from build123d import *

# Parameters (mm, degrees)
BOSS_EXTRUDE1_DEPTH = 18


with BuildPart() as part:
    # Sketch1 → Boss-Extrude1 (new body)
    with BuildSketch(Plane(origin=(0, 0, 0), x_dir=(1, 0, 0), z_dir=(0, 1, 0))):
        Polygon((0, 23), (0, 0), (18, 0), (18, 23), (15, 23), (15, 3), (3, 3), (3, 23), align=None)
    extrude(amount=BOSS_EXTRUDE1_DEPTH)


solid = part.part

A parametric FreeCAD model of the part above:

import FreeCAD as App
import Part
import Sketcher

V = App.Vector
Q = App.Units.Quantity


def add_polygon(sketch, points):
    """Adds a closed chain of lines whose ends are joined by coincident constraints."""
    first, n = sketch.GeometryCount, len(points)
    for a, b in zip(points, points[1:] + points[:1]):
        sketch.addGeometry(Part.LineSegment(App.Vector(*a, 0), App.Vector(*b, 0)), False)
    for i in range(n):
        sketch.addConstraint(Sketcher.Constraint("Coincident", first + i, 2, first + (i + 1) % n, 1))

doc = App.newDocument("Part")
body = doc.addObject("PartDesign::Body", "Body")

sketch1 = body.newObject("Sketcher::SketchObject", "Sketch")
sketch1.AttachmentSupport = (doc.getObject("XZ_Plane"), [""])
sketch1.MapMode = "FlatFace"
add_polygon(sketch1, [(0, -23), (0, 0), (18, 0), (18, -23), (15, -23), (15, -3), (3, -3), (3, -23)])
sketch1.addConstraint([
    Sketcher.Constraint("Vertical", 0),
    Sketcher.Constraint("Horizontal", 1),
    Sketcher.Constraint("Vertical", 2),
    Sketcher.Constraint("Horizontal", 3),
    Sketcher.Constraint("Vertical", 4),
    Sketcher.Constraint("Horizontal", 5),
    Sketcher.Constraint("Vertical", 6),
    Sketcher.Constraint("Horizontal", 7),
    Sketcher.Constraint("Coincident", 0, 2, -1, 1),
    Sketcher.Constraint("Horizontal", 3, 2, 6, 2),
    Sketcher.Constraint("Equal", 3, 7),
    Sketcher.Constraint("DistanceX", 1, 1, 1, 2, Q("18 mm")),
    Sketcher.Constraint("DistanceX", 3, 2, 3, 1, Q("3 mm")),
    Sketcher.Constraint("DistanceY", 0, 1, 0, 2, Q("23 mm")),
    Sketcher.Constraint("DistanceY", 4, 1, 4, 2, Q("20 mm")),
])
pad1 = body.newObject("PartDesign::Pad", "Pad")
pad1.Profile = sketch1
pad1.Length = 18
pad1.Reversed = True

doc.recompute()
